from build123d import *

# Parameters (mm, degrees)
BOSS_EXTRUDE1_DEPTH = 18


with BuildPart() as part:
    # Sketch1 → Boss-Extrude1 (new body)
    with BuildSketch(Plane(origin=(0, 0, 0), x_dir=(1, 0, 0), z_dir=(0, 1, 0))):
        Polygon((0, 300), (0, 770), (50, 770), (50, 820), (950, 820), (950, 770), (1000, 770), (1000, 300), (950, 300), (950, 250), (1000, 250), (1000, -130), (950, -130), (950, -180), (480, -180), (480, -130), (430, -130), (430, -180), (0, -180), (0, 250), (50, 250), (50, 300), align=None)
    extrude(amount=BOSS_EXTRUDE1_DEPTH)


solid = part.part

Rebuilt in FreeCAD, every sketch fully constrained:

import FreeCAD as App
import Part
import Sketcher
from FreeCAD import Vector


def add_polygon(sketch, points):
    """Adds a closed chain of lines whose ends are joined by coincident constraints."""
    first, n = sketch.GeometryCount, len(points)
    for a, b in zip(points, points[1:] + points[:1]):
        sketch.addGeometry(Part.LineSegment(App.Vector(*a, 0), App.Vector(*b, 0)), False)
    for i in range(n):
        sketch.addConstraint(Sketcher.Constraint("Coincident", first + i, 2, first + (i + 1) % n, 1))

doc = App.newDocument("Part")
body = doc.addObject("PartDesign::Body", "Body")

sketch1 = doc.addObject("Sketcher::SketchObject", "Sketch")
body.addObject(sketch1)
sketch1.AttachmentSupport = (doc.XZ_Plane, [""])
sketch1.MapMode = "FlatFace"
add_polygon(sketch1, [(0, -770), (0, -300), (50, -300), (50, -250), (0, -250), (0, 180), (430, 180), (430, 130), (480, 130), (480, 180), (950, 180), (950, 130), (1000, 130), (1000, -250), (950, -250), (950, -300), (1000, -300), (1000, -770), (950, -770), (950, -820), (50, -820), (50, -770)])
sketch1.addConstraint([
    Sketcher.Constraint("Vertical", 0),
    Sketcher.Constraint("Horizontal", 1),
    Sketcher.Constraint("Vertical", 2),
    Sketcher.Constraint("Horizontal", 3),
    Sketcher.Constraint("Vertical", 4),
    Sketcher.Constraint("Horizontal", 5),
    Sketcher.Constraint("Vertical", 6),
    Sketcher.Constraint("Horizontal", 7),
    Sketcher.Constraint("Vertical", 8),
    Sketcher.Constraint("Horizontal", 9),
    Sketcher.Constraint("Vertical", 10),
    Sketcher.Constraint("Horizontal", 11),
    Sketcher.Constraint("Vertical", 12),
    Sketcher.Constraint("Horizontal", 13),
    Sketcher.Constraint("Vertical", 14),
    Sketcher.Constraint("Horizontal", 15),
    Sketcher.Constraint("Vertical", 16),
    Sketcher.Constraint("Horizontal", 17),
    Sketcher.Constraint("Vertical", 18),
    Sketcher.Constraint("Horizontal", 19),
    Sketcher.Constraint("Vertical", 20),
    Sketcher.Constraint("Horizontal", 21),
    Sketcher.Constraint("PointOnObject", 0, 2, -2),
    Sketcher.Constraint("PointOnObject", 3, 2, -2),
    Sketcher.Constraint("Horizontal", 5, 2, 8, 2),
    Sketcher.Constraint("Horizontal", 7, 2, 10, 2),
    Sketcher.Constraint("Horizontal", 3, 2, 12, 2),
    Sketcher.Constraint("Horizontal", 1, 2, 14, 2),
    Sketcher.Constraint("Horizontal", 17, 2, 20, 2),
    Sketcher.Constraint("Vertical", 10, 2, 13, 2),
    Sketcher.Constraint("Vertical", 12, 2, 15, 2),
    Sketcher.Constraint("Vertical", 14, 2, 17, 2),
    Sketcher.Constraint("Vertical", 2, 2, 19, 2),
    Sketcher.Constraint("Equal", 3, 7),
    Sketcher.Constraint("Equal", 7, 11),
    Sketcher.Constraint("Equal", 9, 0),
    Sketcher.Constraint("Equal", 21, 2),
    Sketcher.Constraint("Equal", 5, 4),
    Sketcher.Constraint("Equal", 2, 6),
    Sketcher.Constraint("Equal", 14, 18),
    Sketcher.Constraint("DistanceX", 1, 1, 1, 2, 50.0),
    Sketcher.Constraint("DistanceX", 5, 1, 5, 2, 430.0),
    Sketcher.Constraint("DistanceX", 9, 1, 9, 2, 470.0),
    Sketcher.Constraint("DistanceY", 0, 2, -1, 1, 300.0),
])
pad1 = doc.addObject("PartDesign::Pad", "Pad")
body.addObject(pad1)
pad1.Profile = sketch1
pad1.Length = 18
pad1.Reversed = True

doc.recompute()
